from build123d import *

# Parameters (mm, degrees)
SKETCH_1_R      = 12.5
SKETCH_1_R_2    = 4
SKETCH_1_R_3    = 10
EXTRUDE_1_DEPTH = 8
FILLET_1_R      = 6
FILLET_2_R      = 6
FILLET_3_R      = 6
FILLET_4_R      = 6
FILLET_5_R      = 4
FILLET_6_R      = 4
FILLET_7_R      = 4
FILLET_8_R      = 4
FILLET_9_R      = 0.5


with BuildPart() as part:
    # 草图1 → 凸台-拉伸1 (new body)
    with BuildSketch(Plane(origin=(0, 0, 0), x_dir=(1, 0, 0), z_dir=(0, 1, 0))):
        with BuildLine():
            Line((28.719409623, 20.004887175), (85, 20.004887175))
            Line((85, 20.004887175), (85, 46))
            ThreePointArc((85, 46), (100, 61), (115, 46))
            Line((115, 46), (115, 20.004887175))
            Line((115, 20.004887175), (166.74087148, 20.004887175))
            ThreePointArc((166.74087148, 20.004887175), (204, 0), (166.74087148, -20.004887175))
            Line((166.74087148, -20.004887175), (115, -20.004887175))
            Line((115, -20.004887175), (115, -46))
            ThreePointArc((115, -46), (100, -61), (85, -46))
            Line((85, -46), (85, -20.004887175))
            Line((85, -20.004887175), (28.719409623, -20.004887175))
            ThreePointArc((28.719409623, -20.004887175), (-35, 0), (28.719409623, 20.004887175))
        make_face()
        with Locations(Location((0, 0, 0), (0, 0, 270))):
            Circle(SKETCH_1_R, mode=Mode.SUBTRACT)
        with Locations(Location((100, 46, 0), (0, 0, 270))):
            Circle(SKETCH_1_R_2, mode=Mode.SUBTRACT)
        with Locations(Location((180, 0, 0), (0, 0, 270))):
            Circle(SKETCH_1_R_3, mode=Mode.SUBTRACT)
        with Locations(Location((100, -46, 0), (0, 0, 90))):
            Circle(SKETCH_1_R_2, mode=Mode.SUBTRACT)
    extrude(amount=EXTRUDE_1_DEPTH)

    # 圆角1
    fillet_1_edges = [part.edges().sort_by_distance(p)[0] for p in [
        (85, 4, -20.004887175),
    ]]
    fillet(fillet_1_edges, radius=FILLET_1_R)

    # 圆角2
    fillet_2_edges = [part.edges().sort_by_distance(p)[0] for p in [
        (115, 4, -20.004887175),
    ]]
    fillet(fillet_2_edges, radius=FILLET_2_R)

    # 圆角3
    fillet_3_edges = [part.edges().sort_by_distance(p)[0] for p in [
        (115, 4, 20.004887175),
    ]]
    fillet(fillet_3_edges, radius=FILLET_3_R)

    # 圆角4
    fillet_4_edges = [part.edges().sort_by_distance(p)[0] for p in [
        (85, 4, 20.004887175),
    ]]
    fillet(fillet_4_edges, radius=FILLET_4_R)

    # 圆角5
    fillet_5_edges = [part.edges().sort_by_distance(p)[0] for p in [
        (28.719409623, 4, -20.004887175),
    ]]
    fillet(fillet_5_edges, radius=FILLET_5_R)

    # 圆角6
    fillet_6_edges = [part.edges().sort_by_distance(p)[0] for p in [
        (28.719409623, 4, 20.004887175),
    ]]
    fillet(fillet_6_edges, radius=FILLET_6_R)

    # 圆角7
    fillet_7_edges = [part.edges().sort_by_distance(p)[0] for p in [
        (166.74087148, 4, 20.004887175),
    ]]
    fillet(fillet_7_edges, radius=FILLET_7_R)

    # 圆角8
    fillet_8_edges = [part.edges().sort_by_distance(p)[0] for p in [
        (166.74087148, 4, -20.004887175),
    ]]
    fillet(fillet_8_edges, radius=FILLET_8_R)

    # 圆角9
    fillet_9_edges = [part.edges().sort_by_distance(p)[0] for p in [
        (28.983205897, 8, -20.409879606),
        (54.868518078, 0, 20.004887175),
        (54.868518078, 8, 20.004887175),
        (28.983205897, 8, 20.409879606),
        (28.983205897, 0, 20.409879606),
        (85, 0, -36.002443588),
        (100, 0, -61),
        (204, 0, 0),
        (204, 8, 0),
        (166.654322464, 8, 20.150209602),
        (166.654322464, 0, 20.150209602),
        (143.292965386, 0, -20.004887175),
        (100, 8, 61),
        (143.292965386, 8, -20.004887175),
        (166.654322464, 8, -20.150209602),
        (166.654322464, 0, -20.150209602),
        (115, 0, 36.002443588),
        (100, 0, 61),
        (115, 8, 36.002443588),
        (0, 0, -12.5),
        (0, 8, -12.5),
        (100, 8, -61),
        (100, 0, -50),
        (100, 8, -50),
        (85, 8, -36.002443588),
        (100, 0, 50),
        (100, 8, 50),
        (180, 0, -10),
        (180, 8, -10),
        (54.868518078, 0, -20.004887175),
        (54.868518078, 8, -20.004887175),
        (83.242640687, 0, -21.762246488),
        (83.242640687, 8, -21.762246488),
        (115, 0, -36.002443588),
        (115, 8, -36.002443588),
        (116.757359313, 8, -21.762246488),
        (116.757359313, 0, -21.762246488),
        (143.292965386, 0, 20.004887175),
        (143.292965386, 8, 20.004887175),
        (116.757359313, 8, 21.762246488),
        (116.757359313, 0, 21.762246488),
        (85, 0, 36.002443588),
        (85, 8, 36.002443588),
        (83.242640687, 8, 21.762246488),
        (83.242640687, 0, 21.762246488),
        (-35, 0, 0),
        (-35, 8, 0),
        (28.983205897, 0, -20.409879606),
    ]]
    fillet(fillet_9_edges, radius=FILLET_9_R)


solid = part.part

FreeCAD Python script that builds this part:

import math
import FreeCAD as App
import Part
import Sketcher

V = App.Vector


def edges_at(feature, points):
    """Names of the edges that pass closest to the given points."""
    edges = feature.Shape.Edges
    near = lambda p: min(range(len(edges)), key=lambda i: edges[i].distToShape(Part.Vertex(*p))[0])
    return sorted({f"Edge{near(p) + 1}" for p in points})

doc = App.newDocument("Part")
params = doc.addObject("Spreadsheet::Sheet", "Params")
for row, (alias, value) in enumerate([
    ("sketch1_diameter", "8 mm"),
    ("sketch1_diameter2", "20 mm"),
    ("sketch1_diameter3", "25 mm"),
    ("sketch1_radius", "35 mm"),
    ("sketch1_radius2", "15 mm"),
    ("pad1_length", "8 mm"),
    ("fillet_radius", "6 mm"),
    ("fillet2_radius", "6 mm"),
    ("fillet3_radius", "6 mm"),
    ("fillet4_radius", "6 mm"),
    ("fillet5_radius", "4 mm"),
    ("fillet6_radius", "4 mm"),
    ("fillet7_radius", "4 mm"),
    ("fillet8_radius", "4 mm"),
    ("fillet9_radius", "0.5 mm"),
], start=1):
    params.set(f"A{row}", alias)
    params.set(f"B{row}", "=" + value)
    params.setAlias(f"B{row}", alias)

body = doc.addObject("PartDesign::Body", "Body")

sketch1 = doc.addObject("Sketcher::SketchObject", "Sketch")
body.addObject(sketch1)
sketch1.AttachmentSupport = (doc.XZ_Plane, [""])
sketch1.MapMode = "FlatFace"
sketch1.addGeometry(Part.LineSegment(V(85, -20.004887, 0), V(28.71941, -20.004887, 0)), False)
sketch1.addGeometry(Part.ArcOfCircle(Part.Circle(V(0, 0, 0), V(0, 0, 1), 35), math.radians(34.859654), math.radians(325.140346)), False)
sketch1.addGeometry(Part.LineSegment(V(28.71941, 20.004887, 0), V(85, 20.004887, 0)), False)
sketch1.addGeometry(Part.LineSegment(V(85, 20.004887, 0), V(85, 46, 0)), False)
sketch1.addGeometry(Part.ArcOfCircle(Part.Circle(V(100, 46, 0), V(0, 0, 1), 15), math.radians(0), math.radians(180)), False)
sketch1.addGeometry(Part.LineSegment(V(115, 46, 0), V(115, 20.004887, 0)), False)
sketch1.addGeometry(Part.LineSegment(V(115, 20.004887, 0), V(166.740871, 20.004887, 0)), False)
sketch1.addGeometry(Part.ArcOfCircle(Part.Circle(V(180, 0, 0), V(0, 0, 1), 24), math.radians(-123.536197), math.radians(123.536197)), False)
sketch1.addGeometry(Part.LineSegment(V(166.740871, -20.004887, 0), V(115, -20.004887, 0)), False)
sketch1.addGeometry(Part.LineSegment(V(115, -20.004887, 0), V(115, -46, 0)), False)
sketch1.addGeometry(Part.ArcOfCircle(Part.Circle(V(100, -46, 0), V(0, 0, 1), 15), math.radians(180), math.radians(360)), False)
sketch1.addGeometry(Part.LineSegment(V(85, -46, 0), V(85, -20.004887, 0)), False)
sketch1.addGeometry(Part.Circle(V(100, 46, 0), V(0, 0, 1), 4), False)
sketch1.addGeometry(Part.Circle(V(180, 0, 0), V(0, 0, 1), 10), False)
sketch1.addGeometry(Part.Circle(V(100, -46, 0), V(0, 0, 1), 4), False)
sketch1.addGeometry(Part.Circle(V(0, 0, 0), V(0, 0, 1), 12.5), False)
sketch1.addConstraint(Sketcher.Constraint("Coincident", 0, 2, 1, 2))
sketch1.addConstraint(Sketcher.Constraint("Coincident", 1, 1, 2, 1))
sketch1.addConstraint(Sketcher.Constraint("Coincident", 2, 2, 3, 1))
sketch1.addConstraint(Sketcher.Constraint("Tangent", 3, 2, 4, 2))
sketch1.addConstraint(Sketcher.Constraint("Tangent", 4, 1, 5, 1))
sketch1.addConstraint(Sketcher.Constraint("Coincident", 5, 2, 6, 1))
sketch1.addConstraint(Sketcher.Constraint("Coincident", 6, 2, 7, 2))
sketch1.addConstraint(Sketcher.Constraint("Coincident", 7, 1, 8, 1))
sketch1.addConstraint(Sketcher.Constraint("Coincident", 8, 2, 9, 1))
sketch1.addConstraint(Sketcher.Constraint("Tangent", 9, 2, 10, 2))
sketch1.addConstraint(Sketcher.Constraint("Tangent", 10, 1, 11, 1))
sketch1.addConstraint(Sketcher.Constraint("Coincident", 11, 2, 0, 1))
sketch1.addConstraint(Sketcher.Constraint("Horizontal", 0))
sketch1.addConstraint(Sketcher.Constraint("Horizontal", 2))
sketch1.addConstraint(Sketcher.Constraint("Vertical", 3))
sketch1.addConstraint(Sketcher.Constraint("Vertical", 5))
sketch1.addConstraint(Sketcher.Constraint("Horizontal", 6))
sketch1.addConstraint(Sketcher.Constraint("Horizontal", 8))
sketch1.addConstraint(Sketcher.Constraint("Vertical", 9))
sketch1.addConstraint(Sketcher.Constraint("Vertical", 11))
sketch1.addConstraint(Sketcher.Constraint("Coincident", 1, 3, -1, 1))
sketch1.addConstraint(Sketcher.Constraint("Coincident", 15, 3, -1, 1))
sketch1.addConstraint(Sketcher.Constraint("Coincident", 12, 3, 4, 3))
sketch1.addConstraint(Sketcher.Constraint("Coincident", 13, 3, 7, 3))
sketch1.addConstraint(Sketcher.Constraint("Coincident", 14, 3, 10, 3))
sketch1.addConstraint(Sketcher.Constraint("Equal", 4, 10))
sketch1.addConstraint(Sketcher.Constraint("Equal", 12, 14))
sketch1.addConstraint(Sketcher.Constraint("Symmetric", 4, 3, 10, 3, -1))
sketch1.addConstraint(Sketcher.Constraint("Symmetric", 6, 2, 7, 1, -1))
sketch1.addConstraint(Sketcher.Constraint("Horizontal", 2, 2, 5, 2))
sketch1.addConstraint(Sketcher.Constraint("Horizontal", 0, 2, 7, 1))
sketch1.addConstraint(Sketcher.Constraint("Diameter", 12, 8.0))
sketch1.addConstraint(Sketcher.Constraint("Diameter", 13, 20.0))
sketch1.addConstraint(Sketcher.Constraint("Diameter", 15, 25.0))
sketch1.addConstraint(Sketcher.Constraint("Radius", 1, 35.0))
sketch1.addConstraint(Sketcher.Constraint("Radius", 4, 15.0))
sketch1.addConstraint(Sketcher.Constraint("Radius", 7, 24.0))
sketch1.addConstraint(Sketcher.Constraint("DistanceX", -1, 1, 4, 3, 100.0))
sketch1.addConstraint(Sketcher.Constraint("DistanceY", -1, 1, 4, 3, 46.0))
sketch1.addConstraint(Sketcher.Constraint("DistanceX", -1, 1, 7, 3, 180.0))
sketch1.addConstraint(Sketcher.Constraint("DistanceX", 0, 2, 0, 1, 56.28059))
sketch1.setExpression("Constraints[31]", "Params.sketch1_diameter")
sketch1.setExpression("Constraints[32]", "Params.sketch1_diameter2")
sketch1.setExpression("Constraints[33]", "Params.sketch1_diameter3")
sketch1.setExpression("Constraints[34]", "Params.sketch1_radius")
sketch1.setExpression("Constraints[35]", "Params.sketch1_radius2")
pad1 = doc.addObject("PartDesign::Pad", "Pad")
body.addObject(pad1)
pad1.Profile = sketch1
pad1.setExpression("Length", "Params.pad1_length")
pad1.Reversed = True
doc.recompute()

fillet = doc.addObject("PartDesign::Fillet", "Fillet")
body.addObject(fillet)
fillet.Base = (pad1, edges_at(pad1, [(85, 4, -20.005)]))
fillet.setExpression("Radius", "Params.fillet_radius")
doc.recompute()

fillet2 = doc.addObject("PartDesign::Fillet", "Fillet001")
body.addObject(fillet2)
fillet2.Base = (fillet, edges_at(fillet, [(115, 4, -20.005)]))
fillet2.setExpression("Radius", "Params.fillet2_radius")
doc.recompute()

fillet3 = doc.addObject("PartDesign::Fillet", "Fillet002")
body.addObject(fillet3)
fillet3.Base = (fillet2, edges_at(fillet2, [(115, 4, 20.005)]))
fillet3.setExpression("Radius", "Params.fillet3_radius")
doc.recompute()

fillet4 = doc.addObject("PartDesign::Fillet", "Fillet003")
body.addObject(fillet4)
fillet4.Base = (fillet3, edges_at(fillet3, [(85, 4, 20.005)]))
fillet4.setExpression("Radius", "Params.fillet4_radius")
doc.recompute()

fillet5 = doc.addObject("PartDesign::Fillet", "Fillet004")
body.addObject(fillet5)
fillet5.Base = (fillet4, edges_at(fillet4, [(28.719, 4, -20.005)]))
fillet5.setExpression("Radius", "Params.fillet5_radius")
doc.recompute()

fillet6 = doc.addObject("PartDesign::Fillet", "Fillet005")
body.addObject(fillet6)
fillet6.Base = (fillet5, edges_at(fillet5, [(28.719, 4, 20.005)]))
fillet6.setExpression("Radius", "Params.fillet6_radius")
doc.recompute()

fillet7 = doc.addObject("PartDesign::Fillet", "Fillet006")
body.addObject(fillet7)
fillet7.Base = (fillet6, edges_at(fillet6, [(166.741, 4, 20.005)]))
fillet7.setExpression("Radius", "Params.fillet7_radius")
doc.recompute()

fillet8 = doc.addObject("PartDesign::Fillet", "Fillet007")
body.addObject(fillet8)
fillet8.Base = (fillet7, edges_at(fillet7, [(166.741, 4, -20.005)]))
fillet8.setExpression("Radius", "Params.fillet8_radius")
doc.recompute()

fillet9 = doc.addObject("PartDesign::Fillet", "Fillet008")
body.addObject(fillet9)
fillet9.Base = (fillet8, edges_at(fillet8, [
    (28.983, 8, -20.41),
    (54.869, 0, 20.005),
    (54.869, 8, 20.005),
    (28.983, 8, 20.41),
    (28.983, 0, 20.41),
    (85, 0, -36.002),
    (100, 0, -61),
    (204, 0, 0),
    (204, 8, 0),
    (166.654, 8, 20.15),
    (166.654, 0, 20.15),
    (143.293, 0, -20.005),
    (100, 8, 61),
    (143.293, 8, -20.005),
    (166.654, 8, -20.15),
    (166.654, 0, -20.15),
    (115, 0, 36.002),
    (100, 0, 61),
    (115, 8, 36.002),
    (0, 0, -12.5),
    (0, 8, -12.5),
    (100, 8, -61),
    (100, 0, -50),
    (100, 8, -50),
    (85, 8, -36.002),
    (100, 0, 50),
    (100, 8, 50),
    (180, 0, -10),
    (180, 8, -10),
    (54.869, 0, -20.005),
    (54.869, 8, -20.005),
    (83.243, 0, -21.762),
    (83.243, 8, -21.762),
    (115, 0, -36.002),
    (115, 8, -36.002),
    (116.757, 8, -21.762),
    (116.757, 0, -21.762),
    (143.293, 0, 20.005),
    (143.293, 8, 20.005),
    (116.757, 8, 21.762),
    (116.757, 0, 21.762),
    (85, 0, 36.002),
    (85, 8, 36.002),
    (83.243, 8, 21.762),
    (83.243, 0, 21.762),
    (-35, 0, 0),
    (-35, 8, 0),
    (28.983, 0, -20.41),
]))
fillet9.setExpression("Radius", "Params.fillet9_radius")

doc.recompute()
